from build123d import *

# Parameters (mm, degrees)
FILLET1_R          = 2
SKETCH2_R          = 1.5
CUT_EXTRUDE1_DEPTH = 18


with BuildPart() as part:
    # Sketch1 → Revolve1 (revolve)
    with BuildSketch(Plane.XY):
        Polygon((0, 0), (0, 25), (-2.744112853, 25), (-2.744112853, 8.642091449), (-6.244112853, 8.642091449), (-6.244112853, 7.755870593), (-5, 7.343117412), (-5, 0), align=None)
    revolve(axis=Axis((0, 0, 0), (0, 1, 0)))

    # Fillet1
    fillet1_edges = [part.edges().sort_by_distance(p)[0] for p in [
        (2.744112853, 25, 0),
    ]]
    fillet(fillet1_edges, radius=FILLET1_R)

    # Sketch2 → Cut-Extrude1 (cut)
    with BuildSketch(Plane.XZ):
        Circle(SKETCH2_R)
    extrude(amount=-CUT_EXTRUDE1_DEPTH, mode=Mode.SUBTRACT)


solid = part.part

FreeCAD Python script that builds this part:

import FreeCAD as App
import Part
import Sketcher
Q = App.Units.Quantity


def edges_at(feature, points):
    """Names of the edges that pass closest to the given points."""
    edges = feature.Shape.Edges
    near = lambda p: min(range(len(edges)), key=lambda i: edges[i].distToShape(Part.Vertex(*p))[0])
    return sorted({f"Edge{near(p) + 1}" for p in points})

doc = App.newDocument("Part")
params = doc.addObject("Spreadsheet::Sheet", "Params")
for row, (alias, value) in enumerate([
    ("sketch1_width", "5 mm"),
    ("sketch1_height", "25 mm"),
    ("sketch1_width2", "3.5 mm"),
    ("revolution_angle", "360 deg"),
    ("fillet_radius", "2 mm"),
    ("sketch2_diameter", "3 mm"),
    ("pocket1_length", "18 mm"),
], start=1):
    params.set(f"A{row}", alias)
    params.set(f"B{row}", "=" + value)
    params.setAlias(f"B{row}", alias)

body = doc.addObject("PartDesign::Body", "Body")

sketch1 = doc.addObject("Sketcher::SketchObject", "Sketch")
body.addObject(sketch1)
sketch1.AttachmentSupport = (doc.XY_Plane, [""])
sketch1.MapMode = "FlatFace"
sketch1.addGeometry([
    Part.LineSegment(App.Vector(0, 0, 0), App.Vector(0, 25, 0)),
    Part.LineSegment(App.Vector(0, 25, 0), App.Vector(-2.744113, 25, 0)),
    Part.LineSegment(App.Vector(-2.744113, 25, 0), App.Vector(-2.744113, 8.642091, 0)),
    Part.LineSegment(App.Vector(-2.744113, 8.642091, 0), App.Vector(-6.244113, 8.642091, 0)),
    Part.LineSegment(App.Vector(-6.244113, 8.642091, 0), App.Vector(-6.244113, 7.755871, 0)),
    Part.LineSegment(App.Vector(-6.244113, 7.755871, 0), App.Vector(-5, 7.343117, 0)),
    Part.LineSegment(App.Vector(-5, 7.343117, 0), App.Vector(-5, 0, 0)),
    Part.LineSegment(App.Vector(-5, 0, 0), App.Vector(0, 0, 0)),
], False)
sketch1.addConstraint([
    Sketcher.Constraint("Coincident", 0, 2, 1, 1),
    Sketcher.Constraint("Coincident", 1, 2, 2, 1),
    Sketcher.Constraint("Coincident", 2, 2, 3, 1),
    Sketcher.Constraint("Coincident", 3, 2, 4, 1),
    Sketcher.Constraint("Coincident", 4, 2, 5, 1),
    Sketcher.Constraint("Coincident", 5, 2, 6, 1),
    Sketcher.Constraint("Coincident", 6, 2, 7, 1),
    Sketcher.Constraint("Coincident", 7, 2, 0, 1),
    Sketcher.Constraint("Vertical", 0),
    Sketcher.Constraint("Horizontal", 1),
    Sketcher.Constraint("Vertical", 2),
    Sketcher.Constraint("Horizontal", 3),
    Sketcher.Constraint("Vertical", 4),
    Sketcher.Constraint("Vertical", 6),
    Sketcher.Constraint("Horizontal", 7),
    Sketcher.Constraint("Coincident", 7, 2, -1, 1),
    Sketcher.Constraint("DistanceX", 7, 1, 7, 2, Q("5 mm")),
    Sketcher.Constraint("DistanceY", 0, 1, 0, 2, Q("25 mm")),
    Sketcher.Constraint("DistanceX", 3, 2, 3, 1, Q("3.5 mm")),
    Sketcher.Constraint("DistanceY", 2, 2, 2, 1, Q("16.357909 mm")),
    Sketcher.Constraint("DistanceY", 4, 2, 4, 1, Q("0.886221 mm")),
    Sketcher.Constraint("DistanceX", 1, 2, 1, 1, Q("2.744113 mm")),
    Sketcher.Constraint("DistanceY", 6, 2, 6, 1, Q("7.343117 mm")),
])
sketch1.setExpression("Constraints[16]", "Params.sketch1_width")
sketch1.setExpression("Constraints[17]", "Params.sketch1_height")
sketch1.setExpression("Constraints[18]", "Params.sketch1_width2")
revolution = doc.addObject("PartDesign::Revolution", "Revolution")
body.addObject(revolution)
revolution.Profile = sketch1
revolution.ReferenceAxis = (sketch1, ["V_Axis"])
revolution.setExpression("Angle", "Params.revolution_angle")
doc.recompute()

fillet = doc.addObject("PartDesign::Fillet", "Fillet")
body.addObject(fillet)
fillet.Base = (revolution, edges_at(revolution, [(2.744, 25, 0)]))
fillet.setExpression("Radius", "Params.fillet_radius")

sketch2 = doc.addObject("Sketcher::SketchObject", "Sketch001")
body.addObject(sketch2)
sketch2.AttachmentSupport = (doc.XZ_Plane, [""])
sketch2.MapMode = "FlatFace"
sketch2.addGeometry(Part.Circle(App.Vector(0, 0, 0), App.Vector(0, 0, 1), 1.5), False)
sketch2.addConstraint([
    Sketcher.Constraint("Coincident", 0, 3, -1, 1),
    Sketcher.Constraint("Diameter", 0, Q("3 mm")),
])
sketch2.setExpression("Constraints[1]", "Params.sketch2_diameter")
pocket1 = doc.addObject("PartDesign::Pocket", "Pocket")
body.addObject(pocket1)
pocket1.Profile = sketch2
pocket1.setExpression("Length", "Params.pocket1_length")

doc.recompute()
